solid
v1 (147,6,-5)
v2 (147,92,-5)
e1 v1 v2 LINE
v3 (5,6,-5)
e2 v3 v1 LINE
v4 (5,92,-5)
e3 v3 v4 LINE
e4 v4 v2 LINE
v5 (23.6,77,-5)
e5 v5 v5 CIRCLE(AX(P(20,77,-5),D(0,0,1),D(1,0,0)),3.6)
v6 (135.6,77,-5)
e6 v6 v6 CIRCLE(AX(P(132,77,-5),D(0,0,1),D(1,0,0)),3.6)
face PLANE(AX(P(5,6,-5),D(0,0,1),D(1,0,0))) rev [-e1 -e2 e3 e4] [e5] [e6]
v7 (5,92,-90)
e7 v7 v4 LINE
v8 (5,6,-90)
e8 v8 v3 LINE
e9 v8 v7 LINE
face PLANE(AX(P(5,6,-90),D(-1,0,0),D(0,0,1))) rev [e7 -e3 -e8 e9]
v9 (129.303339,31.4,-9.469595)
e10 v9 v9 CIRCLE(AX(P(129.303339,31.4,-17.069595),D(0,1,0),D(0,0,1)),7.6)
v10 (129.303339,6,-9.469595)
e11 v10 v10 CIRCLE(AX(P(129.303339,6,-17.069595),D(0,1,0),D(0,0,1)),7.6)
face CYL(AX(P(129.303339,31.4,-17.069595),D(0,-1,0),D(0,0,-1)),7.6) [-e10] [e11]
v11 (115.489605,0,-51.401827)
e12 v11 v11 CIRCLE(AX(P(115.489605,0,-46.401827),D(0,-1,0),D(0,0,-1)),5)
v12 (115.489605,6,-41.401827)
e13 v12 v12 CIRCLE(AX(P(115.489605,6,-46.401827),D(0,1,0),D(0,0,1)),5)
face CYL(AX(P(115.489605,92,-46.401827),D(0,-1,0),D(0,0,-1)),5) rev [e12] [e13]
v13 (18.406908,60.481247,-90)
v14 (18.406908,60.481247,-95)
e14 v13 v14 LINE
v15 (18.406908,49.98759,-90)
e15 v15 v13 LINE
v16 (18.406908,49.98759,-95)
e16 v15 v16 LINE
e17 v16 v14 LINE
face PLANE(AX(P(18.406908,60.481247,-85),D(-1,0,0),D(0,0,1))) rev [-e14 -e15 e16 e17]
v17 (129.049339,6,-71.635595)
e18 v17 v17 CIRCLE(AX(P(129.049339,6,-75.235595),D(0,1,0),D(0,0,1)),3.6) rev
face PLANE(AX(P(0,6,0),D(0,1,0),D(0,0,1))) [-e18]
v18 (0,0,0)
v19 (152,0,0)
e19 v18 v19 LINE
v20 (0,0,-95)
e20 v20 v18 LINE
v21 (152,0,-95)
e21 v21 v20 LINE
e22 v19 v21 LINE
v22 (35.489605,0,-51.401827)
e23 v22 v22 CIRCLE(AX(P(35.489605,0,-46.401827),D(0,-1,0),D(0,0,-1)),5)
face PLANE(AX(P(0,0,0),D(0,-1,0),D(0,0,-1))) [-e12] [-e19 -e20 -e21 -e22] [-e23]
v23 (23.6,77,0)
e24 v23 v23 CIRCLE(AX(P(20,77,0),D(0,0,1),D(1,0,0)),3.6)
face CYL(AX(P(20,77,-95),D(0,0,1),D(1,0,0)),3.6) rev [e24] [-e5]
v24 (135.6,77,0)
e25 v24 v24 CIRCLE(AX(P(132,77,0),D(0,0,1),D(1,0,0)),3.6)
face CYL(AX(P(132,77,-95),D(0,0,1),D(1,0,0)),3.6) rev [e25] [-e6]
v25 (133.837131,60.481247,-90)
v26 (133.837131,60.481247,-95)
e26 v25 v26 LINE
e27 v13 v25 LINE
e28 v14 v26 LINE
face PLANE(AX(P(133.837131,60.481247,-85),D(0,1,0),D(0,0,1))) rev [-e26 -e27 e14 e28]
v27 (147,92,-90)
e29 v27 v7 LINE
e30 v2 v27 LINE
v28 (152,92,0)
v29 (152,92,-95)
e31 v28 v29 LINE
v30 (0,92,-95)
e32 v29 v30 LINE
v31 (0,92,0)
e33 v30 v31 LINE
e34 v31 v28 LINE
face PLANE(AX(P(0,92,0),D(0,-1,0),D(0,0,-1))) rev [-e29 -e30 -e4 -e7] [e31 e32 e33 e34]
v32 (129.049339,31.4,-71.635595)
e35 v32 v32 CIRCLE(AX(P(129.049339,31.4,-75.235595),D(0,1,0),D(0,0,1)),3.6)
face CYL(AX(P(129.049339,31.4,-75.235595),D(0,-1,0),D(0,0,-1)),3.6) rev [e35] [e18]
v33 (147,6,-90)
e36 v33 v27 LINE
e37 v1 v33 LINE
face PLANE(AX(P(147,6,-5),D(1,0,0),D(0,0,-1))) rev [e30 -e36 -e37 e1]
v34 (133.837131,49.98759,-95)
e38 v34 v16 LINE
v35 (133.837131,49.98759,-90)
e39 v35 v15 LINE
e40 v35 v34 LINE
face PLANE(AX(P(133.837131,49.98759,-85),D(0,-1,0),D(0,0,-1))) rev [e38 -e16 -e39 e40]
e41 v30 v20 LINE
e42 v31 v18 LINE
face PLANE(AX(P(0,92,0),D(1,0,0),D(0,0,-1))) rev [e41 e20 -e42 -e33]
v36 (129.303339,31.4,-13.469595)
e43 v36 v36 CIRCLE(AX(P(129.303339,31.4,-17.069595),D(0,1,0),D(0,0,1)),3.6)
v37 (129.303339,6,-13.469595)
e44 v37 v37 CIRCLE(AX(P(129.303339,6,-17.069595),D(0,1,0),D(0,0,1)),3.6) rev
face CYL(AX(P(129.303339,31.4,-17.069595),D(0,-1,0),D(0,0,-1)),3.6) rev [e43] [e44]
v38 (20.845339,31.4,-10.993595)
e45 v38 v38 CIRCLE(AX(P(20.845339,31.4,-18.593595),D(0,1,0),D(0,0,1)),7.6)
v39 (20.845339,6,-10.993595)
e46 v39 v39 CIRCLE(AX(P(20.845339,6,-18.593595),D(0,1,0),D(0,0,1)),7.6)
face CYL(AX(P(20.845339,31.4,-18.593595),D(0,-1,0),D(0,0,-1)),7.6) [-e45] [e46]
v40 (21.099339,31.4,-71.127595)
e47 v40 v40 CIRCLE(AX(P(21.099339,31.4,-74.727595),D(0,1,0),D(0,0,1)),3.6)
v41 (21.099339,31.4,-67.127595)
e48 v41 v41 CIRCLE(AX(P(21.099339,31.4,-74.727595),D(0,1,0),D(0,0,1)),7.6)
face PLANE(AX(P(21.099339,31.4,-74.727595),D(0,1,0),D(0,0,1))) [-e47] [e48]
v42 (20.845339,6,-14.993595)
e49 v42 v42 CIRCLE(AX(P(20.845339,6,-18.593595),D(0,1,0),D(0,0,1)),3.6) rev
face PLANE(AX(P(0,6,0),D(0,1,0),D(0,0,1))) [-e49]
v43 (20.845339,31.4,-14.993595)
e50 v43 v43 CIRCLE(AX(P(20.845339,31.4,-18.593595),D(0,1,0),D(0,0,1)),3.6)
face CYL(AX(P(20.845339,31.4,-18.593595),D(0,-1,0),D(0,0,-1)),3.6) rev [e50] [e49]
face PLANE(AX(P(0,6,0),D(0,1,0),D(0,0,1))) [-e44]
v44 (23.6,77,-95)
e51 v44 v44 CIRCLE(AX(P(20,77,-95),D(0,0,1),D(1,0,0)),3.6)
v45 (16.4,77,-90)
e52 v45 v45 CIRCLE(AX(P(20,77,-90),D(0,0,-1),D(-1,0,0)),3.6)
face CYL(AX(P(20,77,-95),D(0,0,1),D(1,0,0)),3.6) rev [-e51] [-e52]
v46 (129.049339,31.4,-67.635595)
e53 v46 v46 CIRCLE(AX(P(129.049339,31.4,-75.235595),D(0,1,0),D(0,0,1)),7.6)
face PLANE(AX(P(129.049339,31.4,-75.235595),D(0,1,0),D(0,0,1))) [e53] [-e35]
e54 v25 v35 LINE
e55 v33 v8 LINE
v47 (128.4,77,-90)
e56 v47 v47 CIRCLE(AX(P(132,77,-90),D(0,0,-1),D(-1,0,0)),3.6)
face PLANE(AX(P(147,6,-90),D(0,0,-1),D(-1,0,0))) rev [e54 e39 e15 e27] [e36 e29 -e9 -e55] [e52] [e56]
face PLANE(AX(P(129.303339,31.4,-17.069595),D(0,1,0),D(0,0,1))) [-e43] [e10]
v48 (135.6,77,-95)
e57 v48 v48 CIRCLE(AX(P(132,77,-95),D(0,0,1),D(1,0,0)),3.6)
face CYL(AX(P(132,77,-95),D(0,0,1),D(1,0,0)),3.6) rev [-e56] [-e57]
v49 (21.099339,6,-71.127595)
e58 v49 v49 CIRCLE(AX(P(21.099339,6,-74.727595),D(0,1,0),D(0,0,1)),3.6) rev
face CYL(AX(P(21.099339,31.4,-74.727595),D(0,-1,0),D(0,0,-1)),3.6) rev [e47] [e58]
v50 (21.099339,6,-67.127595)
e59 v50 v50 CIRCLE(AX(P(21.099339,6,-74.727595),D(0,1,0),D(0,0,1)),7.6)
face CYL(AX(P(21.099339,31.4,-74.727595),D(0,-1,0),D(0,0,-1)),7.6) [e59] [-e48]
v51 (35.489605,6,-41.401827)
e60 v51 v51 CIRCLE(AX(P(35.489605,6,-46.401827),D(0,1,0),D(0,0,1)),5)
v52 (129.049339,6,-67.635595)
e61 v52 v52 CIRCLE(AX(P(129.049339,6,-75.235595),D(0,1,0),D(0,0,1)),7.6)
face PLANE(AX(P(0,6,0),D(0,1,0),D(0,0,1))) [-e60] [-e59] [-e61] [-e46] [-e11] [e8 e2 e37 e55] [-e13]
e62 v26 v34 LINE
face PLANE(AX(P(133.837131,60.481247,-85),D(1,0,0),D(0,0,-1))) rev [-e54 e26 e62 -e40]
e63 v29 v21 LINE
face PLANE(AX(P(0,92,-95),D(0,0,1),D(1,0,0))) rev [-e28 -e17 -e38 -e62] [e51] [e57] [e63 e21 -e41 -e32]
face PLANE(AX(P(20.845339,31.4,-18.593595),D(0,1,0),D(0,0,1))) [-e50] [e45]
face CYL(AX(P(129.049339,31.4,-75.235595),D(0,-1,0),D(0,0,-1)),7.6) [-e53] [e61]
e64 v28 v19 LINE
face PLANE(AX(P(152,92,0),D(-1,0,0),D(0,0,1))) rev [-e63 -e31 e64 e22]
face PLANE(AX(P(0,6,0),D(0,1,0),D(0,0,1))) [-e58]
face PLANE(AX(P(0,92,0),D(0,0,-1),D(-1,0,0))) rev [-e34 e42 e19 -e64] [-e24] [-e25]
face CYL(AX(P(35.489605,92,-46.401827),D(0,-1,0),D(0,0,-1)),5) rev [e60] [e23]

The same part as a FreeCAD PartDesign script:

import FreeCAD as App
import Part
import Sketcher

V = App.Vector

doc = App.newDocument("Part")
body = doc.addObject("PartDesign::Body", "Body")

sketch1 = body.newObject("Sketcher::SketchObject", "Sketch")
sketch1.AttachmentSupport = (doc.getObject("XZ_Plane"), [""])
sketch1.MapMode = "FlatFace"
sketch1.addGeometry([
    Part.LineSegment(V(0, -95, 0), V(0, 0, 0)),
    Part.LineSegment(V(0, 0, 0), V(152, 0, 0)),
    Part.LineSegment(V(152, 0, 0), V(152, -95, 0)),
    Part.LineSegment(V(152, -95, 0), V(0, -95, 0)),
], False)
sketch1.addConstraint([
    Sketcher.Constraint("Coincident", 0, 2, 1, 1),
    Sketcher.Constraint("Coincident", 1, 2, 2, 1),
    Sketcher.Constraint("Coincident", 2, 2, 3, 1),
    Sketcher.Constraint("Coincident", 3, 2, 0, 1),
    Sketcher.Constraint("Vertical", 0),
    Sketcher.Constraint("Horizontal", 1),
    Sketcher.Constraint("Vertical", 2),
    Sketcher.Constraint("Horizontal", 3),
    Sketcher.Constraint("Coincident", 0, 2, -1, 1),
    Sketcher.Constraint("DistanceX", 1, 1, 1, 2, 152.0),
    Sketcher.Constraint("DistanceY", 0, 1, 0, 2, 95.0),
])
pad1 = body.newObject("PartDesign::Pad", "Pad")
pad1.Profile = sketch1
pad1.Length = 92
pad1.Reversed = True

sketch2 = body.newObject("Sketcher::SketchObject", "Sketch001")
sketch2.AttachmentSupport = (doc.getObject("XZ_Plane"), [""])
sketch2.MapMode = "FlatFace"
sketch2.AttachmentOffset = App.Placement(V(0, 0, -92), App.Rotation())
sketch2.addGeometry([
    Part.LineSegment(V(5, -90, 0), V(5, -5, 0)),
    Part.LineSegment(V(5, -5, 0), V(147, -5, 0)),
    Part.LineSegment(V(147, -5, 0), V(147, -90, 0)),
    Part.LineSegment(V(147, -90, 0), V(5, -90, 0)),
], False)
sketch2.addConstraint([
    Sketcher.Constraint("Coincident", 0, 2, 1, 1),
    Sketcher.Constraint("Coincident", 1, 2, 2, 1),
    Sketcher.Constraint("Coincident", 2, 2, 3, 1),
    Sketcher.Constraint("Coincident", 3, 2, 0, 1),
    Sketcher.Constraint("Vertical", 0),
    Sketcher.Constraint("Horizontal", 1),
    Sketcher.Constraint("Vertical", 2),
    Sketcher.Constraint("Horizontal", 3),
    Sketcher.Constraint("DistanceX", 1, 1, 1, 2, 142.0),
    Sketcher.Constraint("DistanceY", 0, 1, 0, 2, 85.0),
    Sketcher.Constraint("DistanceX", -1, 1, 0, 2, 5.0),
    Sketcher.Constraint("DistanceY", 0, 2, -1, 1, 5.0),
])
pocket1 = body.newObject("PartDesign::Pocket", "Pocket")
pocket1.Profile = sketch2
pocket1.Length = 86
pocket1.Reversed = True

sketch3 = body.newObject("Sketcher::SketchObject", "Sketch002")
sketch3.AttachmentSupport = (doc.getObject("XZ_Plane"), [""])
sketch3.MapMode = "FlatFace"
sketch3.AttachmentOffset = App.Placement(V(0, 0, -6), App.Rotation())
sketch3.addGeometry([
    Part.Circle(V(20.8, -18.6, 0), V(0, 0, 1), 7.6),
    Part.Circle(V(20.8, -18.6, 0), V(0, 0, 1), 3.6),
    Part.Circle(V(21.1, -74.7, 0), V(0, 0, 1), 7.6),
    Part.Circle(V(21.1, -74.7, 0), V(0, 0, 1), 3.6),
    Part.Circle(V(129.3, -17.1, 0), V(0, 0, 1), 7.6),
    Part.Circle(V(129.3, -17.1, 0), V(0, 0, 1), 3.6),
    Part.Circle(V(129, -75.2, 0), V(0, 0, 1), 7.6),
    Part.Circle(V(129, -75.2, 0), V(0, 0, 1), 3.6),
], False)
sketch3.addConstraint([
    Sketcher.Constraint("Coincident", 1, 3, 0, 3),
    Sketcher.Constraint("Coincident", 3, 3, 2, 3),
    Sketcher.Constraint("Coincident", 5, 3, 4, 3),
    Sketcher.Constraint("Coincident", 7, 3, 6, 3),
    Sketcher.Constraint("Equal", 0, 2),
    Sketcher.Constraint("Equal", 1, 3),
    Sketcher.Constraint("Equal", 2, 4),
    Sketcher.Constraint("Equal", 3, 5),
    Sketcher.Constraint("Equal", 4, 6),
    Sketcher.Constraint("Equal", 5, 7),
    Sketcher.Constraint("Diameter", 0, 15.2),
    Sketcher.Constraint("Diameter", 1, 7.2),
    Sketcher.Constraint("DistanceX", 2, 3, 6, 3, 107.95),
    Sketcher.Constraint("DistanceX", 0, 3, 2, 3, 0.254),
    Sketcher.Constraint("DistanceY", 2, 3, 0, 3, 56.134),
    Sketcher.Constraint("DistanceX", 0, 3, 4, 3, 108.458),
    Sketcher.Constraint("DistanceY", 0, 3, 4, 3, 1.524),
    Sketcher.Constraint("DistanceY", 6, 3, 4, 3, 58.166),
    Sketcher.Constraint("DistanceX", -1, 1, 0, 3, 20.845339),
    Sketcher.Constraint("DistanceY", 0, 3, -1, 1, 18.593595),
])
pad2 = body.newObject("PartDesign::Pad", "Pad001")
pad2.Profile = sketch3
pad2.Length = 25.4
pad2.Reversed = True

sketch4 = body.newObject("Sketcher::SketchObject", "Sketch003")
sketch4.AttachmentSupport = (doc.getObject("XY_Plane"), [""])
sketch4.MapMode = "FlatFace"
sketch4.addGeometry([
    Part.Circle(V(20, 77, 0), V(0, 0, 1), 3.6),
    Part.Circle(V(132, 77, 0), V(0, 0, 1), 3.6),
], False)
sketch4.addConstraint([
    Sketcher.Constraint("Equal", 0, 1),
    Sketcher.Constraint("Horizontal", 0, 3, 1, 3),
    Sketcher.Constraint("Diameter", 0, 7.2),
    Sketcher.Constraint("DistanceX", -1, 1, 0, 3, 20.0),
    Sketcher.Constraint("DistanceY", -1, 1, 0, 3, 77.0),
    Sketcher.Constraint("DistanceX", -1, 1, 1, 3, 132.0),
])
pocket2 = body.newObject("PartDesign::Pocket", "Pocket001")
pocket2.Profile = sketch4
pocket2.Type = "ThroughAll"

sketch5 = body.newObject("Sketcher::SketchObject", "Sketch004")
sketch5.AttachmentSupport = (doc.getObject("XZ_Plane"), [""])
sketch5.MapMode = "FlatFace"
sketch5.addGeometry([
    Part.Circle(V(35, -46, 0), V(0, 0, 1), 5),
    Part.Circle(V(115, -46, 0), V(0, 0, 1), 5),
], False)
sketch5.addConstraint([
    Sketcher.Constraint("Equal", 0, 1),
    Sketcher.Constraint("Horizontal", 0, 3, 1, 3),
    Sketcher.Constraint("Diameter", 0, 10.0),
    Sketcher.Constraint("DistanceX", 0, 3, 1, 3, 80.0),
    Sketcher.Constraint("DistanceX", -1, 1, 0, 3, 35.489605),
    Sketcher.Constraint("DistanceY", 0, 3, -1, 1, 46.401827),
])
pocket3 = body.newObject("PartDesign::Pocket", "Pocket002")
pocket3.Profile = sketch5
pocket3.Type = "ThroughAll"

sketch6 = body.newObject("Sketcher::SketchObject", "Sketch005")
sketch6.AttachmentSupport = (doc.getObject("XY_Plane"), [""])
sketch6.MapMode = "FlatFace"
sketch6.AttachmentOffset = App.Placement(V(0, 0, -95), App.Rotation())
sketch6.addGeometry([
    Part.LineSegment(V(134, 60, 0), V(134, 50, 0)),
    Part.LineSegment(V(134, 50, 0), V(18, 50, 0)),
    Part.LineSegment(V(18, 50, 0), V(18, 60, 0)),
    Part.LineSegment(V(18, 60, 0), V(134, 60, 0)),
], False)
sketch6.addConstraint([
    Sketcher.Constraint("Coincident", 0, 2, 1, 1),
    Sketcher.Constraint("Coincident", 1, 2, 2, 1),
    Sketcher.Constraint("Coincident", 2, 2, 3, 1),
    Sketcher.Constraint("Coincident", 3, 2, 0, 1),
    Sketcher.Constraint("Vertical", 0),
    Sketcher.Constraint("Horizontal", 1),
    Sketcher.Constraint("Vertical", 2),
    Sketcher.Constraint("Horizontal", 3),
    Sketcher.Constraint("DistanceX", 1, 2, 1, 1, 115.430223),
    Sketcher.Constraint("DistanceY", 0, 2, 0, 1, 10.493657),
    Sketcher.Constraint("DistanceX", -1, 1, 0, 2, 133.837131),
    Sketcher.Constraint("DistanceY", -1, 1, 0, 2, 49.98759),
])
pocket4 = body.newObject("PartDesign::Pocket", "Pocket003")
pocket4.Profile = sketch6
pocket4.Length = 10
pocket4.Reversed = True

doc.recompute()
